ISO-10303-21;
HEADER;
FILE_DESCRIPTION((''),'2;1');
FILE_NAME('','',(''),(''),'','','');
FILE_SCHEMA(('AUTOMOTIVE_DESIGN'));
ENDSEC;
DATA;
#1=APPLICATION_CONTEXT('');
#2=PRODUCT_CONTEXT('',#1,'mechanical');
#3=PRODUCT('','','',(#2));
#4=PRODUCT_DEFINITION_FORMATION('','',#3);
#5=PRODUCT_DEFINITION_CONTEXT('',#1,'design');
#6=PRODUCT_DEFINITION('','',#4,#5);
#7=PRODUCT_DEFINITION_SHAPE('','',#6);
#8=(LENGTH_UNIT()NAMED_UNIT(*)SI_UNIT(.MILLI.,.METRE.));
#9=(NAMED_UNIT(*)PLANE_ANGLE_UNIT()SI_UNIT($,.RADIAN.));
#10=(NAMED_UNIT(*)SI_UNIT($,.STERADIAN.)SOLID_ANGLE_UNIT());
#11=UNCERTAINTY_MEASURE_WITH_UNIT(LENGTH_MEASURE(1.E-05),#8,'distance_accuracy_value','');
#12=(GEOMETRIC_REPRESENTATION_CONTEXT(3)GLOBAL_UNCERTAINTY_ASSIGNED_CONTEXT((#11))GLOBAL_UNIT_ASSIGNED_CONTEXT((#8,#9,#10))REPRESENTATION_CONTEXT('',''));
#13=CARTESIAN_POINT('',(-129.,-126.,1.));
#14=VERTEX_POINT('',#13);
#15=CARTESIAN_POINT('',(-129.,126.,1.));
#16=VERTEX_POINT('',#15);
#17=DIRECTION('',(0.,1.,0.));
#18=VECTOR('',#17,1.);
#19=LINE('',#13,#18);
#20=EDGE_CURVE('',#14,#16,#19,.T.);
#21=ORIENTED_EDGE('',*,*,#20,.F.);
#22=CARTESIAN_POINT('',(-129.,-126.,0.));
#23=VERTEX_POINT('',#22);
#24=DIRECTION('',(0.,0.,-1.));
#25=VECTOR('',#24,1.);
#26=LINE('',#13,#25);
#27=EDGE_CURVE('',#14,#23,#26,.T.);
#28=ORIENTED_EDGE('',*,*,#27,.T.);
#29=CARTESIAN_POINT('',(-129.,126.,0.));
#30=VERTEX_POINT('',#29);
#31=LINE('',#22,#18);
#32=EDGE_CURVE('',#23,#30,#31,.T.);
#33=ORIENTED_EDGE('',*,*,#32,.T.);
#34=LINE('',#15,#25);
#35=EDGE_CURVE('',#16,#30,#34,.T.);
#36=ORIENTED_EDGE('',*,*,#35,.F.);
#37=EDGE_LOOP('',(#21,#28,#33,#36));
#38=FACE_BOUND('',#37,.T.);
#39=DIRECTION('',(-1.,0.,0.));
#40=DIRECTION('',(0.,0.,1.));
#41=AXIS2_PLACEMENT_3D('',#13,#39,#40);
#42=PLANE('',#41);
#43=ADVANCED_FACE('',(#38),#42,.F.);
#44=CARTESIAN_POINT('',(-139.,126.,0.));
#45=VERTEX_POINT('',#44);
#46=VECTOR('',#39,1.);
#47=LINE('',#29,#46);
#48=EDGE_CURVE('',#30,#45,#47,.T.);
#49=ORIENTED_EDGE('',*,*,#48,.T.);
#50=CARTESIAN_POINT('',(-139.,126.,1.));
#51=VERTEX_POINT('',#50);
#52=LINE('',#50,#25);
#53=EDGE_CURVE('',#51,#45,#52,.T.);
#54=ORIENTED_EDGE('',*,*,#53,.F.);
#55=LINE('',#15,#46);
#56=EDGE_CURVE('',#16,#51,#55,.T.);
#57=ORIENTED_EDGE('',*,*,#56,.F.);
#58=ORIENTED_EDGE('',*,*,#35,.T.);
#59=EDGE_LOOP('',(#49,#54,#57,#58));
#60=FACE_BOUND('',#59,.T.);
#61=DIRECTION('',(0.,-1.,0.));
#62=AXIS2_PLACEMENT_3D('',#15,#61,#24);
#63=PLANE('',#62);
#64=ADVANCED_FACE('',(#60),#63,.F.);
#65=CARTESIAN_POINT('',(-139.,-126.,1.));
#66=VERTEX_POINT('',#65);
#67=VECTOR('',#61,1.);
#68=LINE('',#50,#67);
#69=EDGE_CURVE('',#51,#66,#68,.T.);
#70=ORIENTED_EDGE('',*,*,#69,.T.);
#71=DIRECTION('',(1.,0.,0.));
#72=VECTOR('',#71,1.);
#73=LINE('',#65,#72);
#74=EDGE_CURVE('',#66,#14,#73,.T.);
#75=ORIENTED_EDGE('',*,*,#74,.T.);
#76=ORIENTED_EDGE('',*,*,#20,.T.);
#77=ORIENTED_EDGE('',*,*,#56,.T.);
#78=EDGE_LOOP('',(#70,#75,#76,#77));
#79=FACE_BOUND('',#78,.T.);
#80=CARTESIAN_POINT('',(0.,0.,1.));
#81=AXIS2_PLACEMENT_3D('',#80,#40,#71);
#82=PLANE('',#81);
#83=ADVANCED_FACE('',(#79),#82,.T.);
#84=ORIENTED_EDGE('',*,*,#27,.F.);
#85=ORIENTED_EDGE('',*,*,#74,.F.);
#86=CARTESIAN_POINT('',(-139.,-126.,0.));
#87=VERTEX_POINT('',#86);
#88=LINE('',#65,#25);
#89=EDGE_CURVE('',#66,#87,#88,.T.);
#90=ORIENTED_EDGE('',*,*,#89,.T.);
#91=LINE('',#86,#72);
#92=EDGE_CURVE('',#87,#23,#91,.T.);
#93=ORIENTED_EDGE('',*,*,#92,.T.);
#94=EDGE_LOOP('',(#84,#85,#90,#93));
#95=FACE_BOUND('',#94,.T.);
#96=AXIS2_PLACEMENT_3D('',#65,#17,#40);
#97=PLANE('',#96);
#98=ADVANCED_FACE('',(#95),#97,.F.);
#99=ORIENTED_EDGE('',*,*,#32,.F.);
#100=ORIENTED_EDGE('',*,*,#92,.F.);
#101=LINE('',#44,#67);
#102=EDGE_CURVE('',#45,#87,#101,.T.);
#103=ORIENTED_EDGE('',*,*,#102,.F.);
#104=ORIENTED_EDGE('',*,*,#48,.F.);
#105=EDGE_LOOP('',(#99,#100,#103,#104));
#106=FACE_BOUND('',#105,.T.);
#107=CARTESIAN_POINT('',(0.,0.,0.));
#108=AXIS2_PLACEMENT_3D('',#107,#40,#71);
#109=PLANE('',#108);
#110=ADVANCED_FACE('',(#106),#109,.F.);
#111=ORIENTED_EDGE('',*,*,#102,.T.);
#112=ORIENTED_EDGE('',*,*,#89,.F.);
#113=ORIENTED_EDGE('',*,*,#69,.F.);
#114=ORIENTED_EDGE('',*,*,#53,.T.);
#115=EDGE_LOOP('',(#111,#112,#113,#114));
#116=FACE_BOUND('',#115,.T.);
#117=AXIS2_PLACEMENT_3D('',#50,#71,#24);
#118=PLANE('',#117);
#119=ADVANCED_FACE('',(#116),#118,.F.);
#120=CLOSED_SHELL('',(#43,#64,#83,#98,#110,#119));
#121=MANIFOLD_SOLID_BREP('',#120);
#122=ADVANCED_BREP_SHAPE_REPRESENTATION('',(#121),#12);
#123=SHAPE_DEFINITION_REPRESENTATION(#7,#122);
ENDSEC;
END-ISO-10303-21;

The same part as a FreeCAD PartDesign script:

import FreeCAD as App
import Part
import Sketcher


def add_polygon(sketch, points):
    """Adds a closed chain of lines whose ends are joined by coincident constraints."""
    first, n = sketch.GeometryCount, len(points)
    for a, b in zip(points, points[1:] + points[:1]):
        sketch.addGeometry(Part.LineSegment(App.Vector(*a, 0), App.Vector(*b, 0)), False)
    for i in range(n):
        sketch.addConstraint(Sketcher.Constraint("Coincident", first + i, 2, first + (i + 1) % n, 1))

doc = App.newDocument("Part")
body = doc.addObject("PartDesign::Body", "Body")

# Sketch on XY plane
sketch1 = body.newObject("Sketcher::SketchObject", "Sketch")
sketch1.AttachmentSupport = (doc.getObject("XY_Plane"), [""])
sketch1.MapMode = "FlatFace"
add_polygon(sketch1, [(-139, 126), (-139, -126), (-129, -126), (-129, 126)])  # lines 0-3
sketch1.addConstraint([
    Sketcher.Constraint("Vertical", 0),
    Sketcher.Constraint("Horizontal", 1),
    Sketcher.Constraint("Vertical", 2),
    Sketcher.Constraint("Horizontal", 3),
    Sketcher.Constraint("DistanceX", 1, 1, 1, 2, 10.0),
    Sketcher.Constraint("DistanceY", 0, 2, 0, 1, 252.0),
    Sketcher.Constraint("DistanceX", 0, 2, -1, 1, 139.0),
    Sketcher.Constraint("DistanceY", 0, 2, -1, 1, 126.0),
])
pad1 = body.newObject("PartDesign::Pad", "Pad")
pad1.Profile = sketch1
pad1.Length = 1

doc.recompute()
